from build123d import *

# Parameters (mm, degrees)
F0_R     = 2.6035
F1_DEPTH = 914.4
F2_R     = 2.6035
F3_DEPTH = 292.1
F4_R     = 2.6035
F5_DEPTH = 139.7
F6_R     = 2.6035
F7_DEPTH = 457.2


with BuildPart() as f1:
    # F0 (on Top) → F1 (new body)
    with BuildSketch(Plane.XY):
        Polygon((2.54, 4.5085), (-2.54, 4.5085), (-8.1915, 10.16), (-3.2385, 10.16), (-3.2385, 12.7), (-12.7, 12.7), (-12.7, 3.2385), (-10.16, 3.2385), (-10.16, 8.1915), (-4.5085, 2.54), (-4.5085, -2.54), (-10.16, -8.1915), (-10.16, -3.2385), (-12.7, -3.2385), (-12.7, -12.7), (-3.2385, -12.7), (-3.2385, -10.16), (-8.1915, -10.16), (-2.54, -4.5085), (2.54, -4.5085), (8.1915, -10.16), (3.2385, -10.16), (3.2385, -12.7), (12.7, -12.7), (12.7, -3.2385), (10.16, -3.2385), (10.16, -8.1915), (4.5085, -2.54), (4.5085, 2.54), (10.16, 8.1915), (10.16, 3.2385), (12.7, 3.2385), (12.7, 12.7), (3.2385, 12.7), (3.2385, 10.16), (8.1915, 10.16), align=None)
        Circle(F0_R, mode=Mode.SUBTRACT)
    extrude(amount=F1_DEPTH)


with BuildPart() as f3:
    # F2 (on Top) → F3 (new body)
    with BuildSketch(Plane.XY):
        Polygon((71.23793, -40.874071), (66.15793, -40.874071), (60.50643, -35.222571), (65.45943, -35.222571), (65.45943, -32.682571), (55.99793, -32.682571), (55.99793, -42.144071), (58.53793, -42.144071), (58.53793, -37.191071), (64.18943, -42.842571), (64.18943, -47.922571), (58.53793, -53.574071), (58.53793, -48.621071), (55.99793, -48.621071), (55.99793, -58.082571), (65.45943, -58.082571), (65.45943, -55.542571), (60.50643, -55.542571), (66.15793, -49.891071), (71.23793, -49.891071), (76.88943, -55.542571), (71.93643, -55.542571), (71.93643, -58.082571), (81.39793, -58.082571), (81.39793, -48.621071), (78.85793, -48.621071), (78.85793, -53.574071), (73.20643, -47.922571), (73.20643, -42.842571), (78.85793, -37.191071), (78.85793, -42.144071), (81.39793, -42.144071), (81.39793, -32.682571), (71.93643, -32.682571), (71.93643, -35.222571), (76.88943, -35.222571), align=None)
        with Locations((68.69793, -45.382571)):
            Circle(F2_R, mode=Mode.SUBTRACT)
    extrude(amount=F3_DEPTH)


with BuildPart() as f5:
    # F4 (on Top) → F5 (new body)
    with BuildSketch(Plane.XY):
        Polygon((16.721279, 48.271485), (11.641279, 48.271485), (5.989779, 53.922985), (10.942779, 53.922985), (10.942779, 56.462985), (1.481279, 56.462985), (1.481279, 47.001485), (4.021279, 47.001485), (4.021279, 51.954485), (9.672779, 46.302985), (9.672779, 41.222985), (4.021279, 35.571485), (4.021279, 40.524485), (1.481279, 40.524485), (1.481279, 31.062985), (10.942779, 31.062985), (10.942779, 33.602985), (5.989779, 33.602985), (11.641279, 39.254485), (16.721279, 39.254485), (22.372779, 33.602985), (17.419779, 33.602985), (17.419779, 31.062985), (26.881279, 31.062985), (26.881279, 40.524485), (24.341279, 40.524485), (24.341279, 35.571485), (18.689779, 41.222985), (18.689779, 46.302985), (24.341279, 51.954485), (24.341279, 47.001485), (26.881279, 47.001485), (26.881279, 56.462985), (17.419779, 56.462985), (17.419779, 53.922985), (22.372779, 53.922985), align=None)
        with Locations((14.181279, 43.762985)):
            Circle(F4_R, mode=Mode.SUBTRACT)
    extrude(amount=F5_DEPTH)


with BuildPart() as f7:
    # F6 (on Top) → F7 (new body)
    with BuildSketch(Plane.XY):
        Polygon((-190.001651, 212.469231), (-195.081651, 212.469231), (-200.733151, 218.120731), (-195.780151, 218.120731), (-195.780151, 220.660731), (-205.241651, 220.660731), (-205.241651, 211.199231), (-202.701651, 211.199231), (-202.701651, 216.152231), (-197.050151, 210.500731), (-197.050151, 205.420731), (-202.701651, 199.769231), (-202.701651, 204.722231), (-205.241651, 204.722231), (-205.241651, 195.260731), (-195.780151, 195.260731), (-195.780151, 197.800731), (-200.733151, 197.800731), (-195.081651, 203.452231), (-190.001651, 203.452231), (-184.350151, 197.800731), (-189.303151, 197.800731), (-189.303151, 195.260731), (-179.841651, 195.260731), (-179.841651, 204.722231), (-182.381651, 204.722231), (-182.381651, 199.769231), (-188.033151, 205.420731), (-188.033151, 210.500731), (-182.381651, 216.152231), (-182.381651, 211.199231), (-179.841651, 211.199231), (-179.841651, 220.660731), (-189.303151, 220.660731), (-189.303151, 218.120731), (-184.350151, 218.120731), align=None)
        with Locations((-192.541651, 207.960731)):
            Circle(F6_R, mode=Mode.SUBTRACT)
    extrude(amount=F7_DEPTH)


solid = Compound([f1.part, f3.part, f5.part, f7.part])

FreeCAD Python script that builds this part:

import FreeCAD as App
import Part
import Sketcher
from FreeCAD import Vector
Q = App.Units.Quantity


def add_polygon(sketch, points):
    """Adds a closed chain of lines whose ends are joined by coincident constraints."""
    first, n = sketch.GeometryCount, len(points)
    for a, b in zip(points, points[1:] + points[:1]):
        sketch.addGeometry(Part.LineSegment(App.Vector(*a, 0), App.Vector(*b, 0)), False)
    for i in range(n):
        sketch.addConstraint(Sketcher.Constraint("Coincident", first + i, 2, first + (i + 1) % n, 1))

doc = App.newDocument("Part")
body = doc.addObject("PartDesign::Body", "Body")

# Sketch on XY plane
sketch1 = body.newObject("Sketcher::SketchObject", "Sketch")
sketch1.AttachmentSupport = (doc.getObject("XY_Plane"), [""])
sketch1.MapMode = "FlatFace"
add_polygon(sketch1, [(2.5, 4.5), (-2.5, 4.5), (-8.2, 10.2), (-3.2, 10.2), (-3.2, 12.7), (-12.7, 12.7), (-12.7, 3.2), (-10.2, 3.2), (-10.2, 8.2), (-4.5, 2.5), (-4.5, -2.5), (-10.2, -8.2), (-10.2, -3.2), (-12.7, -3.2), (-12.7, -12.7), (-3.2, -12.7), (-3.2, -10.2), (-8.2, -10.2), (-2.5, -4.5), (2.5, -4.5), (8.2, -10.2), (3.2, -10.2), (3.2, -12.7), (12.7, -12.7), (12.7, -3.2), (10.2, -3.2), (10.2, -8.2), (4.5, -2.5), (4.5, 2.5), (10.2, 8.2), (10.2, 3.2), (12.7, 3.2), (12.7, 12.7), (3.2, 12.7), (3.2, 10.2), (8.2, 10.2)])  # lines 0-35
sketch1.addGeometry(Part.Circle(Vector(0, 0, 0), Vector(0, 0, 1), 2.6), False)  # 36
sketch1.addConstraint([
    Sketcher.Constraint("Horizontal", 0),
    Sketcher.Constraint("Horizontal", 2),
    Sketcher.Constraint("Vertical", 3),
    Sketcher.Constraint("Horizontal", 4),
    Sketcher.Constraint("Vertical", 5),
    Sketcher.Constraint("Horizontal", 6),
    Sketcher.Constraint("Vertical", 7),
    Sketcher.Constraint("Vertical", 9),
    Sketcher.Constraint("Vertical", 11),
    Sketcher.Constraint("Horizontal", 12),
    Sketcher.Constraint("Vertical", 13),
    Sketcher.Constraint("Horizontal", 14),
    Sketcher.Constraint("Vertical", 15),
    Sketcher.Constraint("Horizontal", 16),
    Sketcher.Constraint("Horizontal", 18),
    Sketcher.Constraint("Horizontal", 20),
    Sketcher.Constraint("Vertical", 21),
    Sketcher.Constraint("Horizontal", 22),
    Sketcher.Constraint("Vertical", 23),
    Sketcher.Constraint("Horizontal", 24),
    Sketcher.Constraint("Vertical", 25),
    Sketcher.Constraint("Vertical", 27),
    Sketcher.Constraint("Vertical", 29),
    Sketcher.Constraint("Horizontal", 30),
    Sketcher.Constraint("Vertical", 31),
    Sketcher.Constraint("Horizontal", 32),
    Sketcher.Constraint("Vertical", 33),
    Sketcher.Constraint("Horizontal", 34),
    Sketcher.Constraint("Coincident", 36, 3, -1, 1),
    Sketcher.Constraint("Symmetric", 0, 2, 18, 2, -1, 1),
    Sketcher.Constraint("Symmetric", 1, 2, 19, 2, -1, 1),
    Sketcher.Constraint("Symmetric", 3, 2, 21, 2, -1, 1),
    Sketcher.Constraint("Symmetric", 5, 2, 23, 2, -1, 1),
    Sketcher.Constraint("Symmetric", 7, 2, 25, 2, -1, 1),
    Sketcher.Constraint("Symmetric", 8, 2, 26, 2, -1, 1),
    Sketcher.Constraint("Symmetric", 10, 2, 28, 2, -1, 1),
    Sketcher.Constraint("Symmetric", 12, 2, 30, 2, -1, 1),
    Sketcher.Constraint("Symmetric", 14, 2, 32, 2, -1, 1),
    Sketcher.Constraint("Symmetric", 16, 2, 34, 2, -1, 1),
    Sketcher.Constraint("Symmetric", 16, 2, 19, 2, -2),
    Sketcher.Constraint("Symmetric", 14, 2, 21, 2, -2),
    Sketcher.Constraint("Symmetric", 12, 2, 23, 2, -2),
    Sketcher.Constraint("Symmetric", 10, 2, 25, 2, -2),
    Sketcher.Constraint("Parallel", 1, 8),
    Sketcher.Constraint("Perpendicular", 8, 10),
    Sketcher.Constraint("Parallel", 10, 17),
    Sketcher.Constraint("Perpendicular", 26, 28),
    Sketcher.Constraint("Parallel", 28, 35),
    Sketcher.Constraint("Horizontal", 9, 2, 26, 2),
    Sketcher.Constraint("Equal", 30, 3),
    Sketcher.Constraint("Equal", 32, 5),
    Sketcher.Constraint("Equal", 34, 7),
    Sketcher.Constraint("Equal", 18, 9),
    Sketcher.Constraint("Equal", 1, 8),
    Sketcher.Constraint("Diameter", 36, Q("0.205 in")),
    Sketcher.Constraint("DistanceX", 0, 2, 0, 1, Q("0.2 in")),
    Sketcher.Constraint("DistanceX", 6, 1, 6, 2, Q("0.1 in")),
    Sketcher.Constraint("DistanceY", -1, 1, 1, 2, Q("0.4 in")),
    Sketcher.Constraint("DistanceX", 2, 1, 2, 2, Q("0.195 in")),
    Sketcher.Constraint("DistanceY", 5, 2, 0, 2, Q("0.05 in")),
])
pad1 = body.newObject("PartDesign::Pad", "Pad")
pad1.Profile = sketch1
pad1.Length = Q("36 in")
body2 = doc.addObject("PartDesign::Body", "Body001")

# Sketch on XY plane
sketch2 = body2.newObject("Sketcher::SketchObject", "Sketch001")
sketch2.AttachmentSupport = (doc.getObject("XY_Plane001"), [""])
sketch2.MapMode = "FlatFace"
add_polygon(sketch2, [(71.2, -40.9), (66.2, -40.9), (60.5, -35.2), (65.5, -35.2), (65.5, -32.7), (56, -32.7), (56, -42.1), (58.5, -42.1), (58.5, -37.2), (64.2, -42.8), (64.2, -47.9), (58.5, -53.6), (58.5, -48.6), (56, -48.6), (56, -58.1), (65.5, -58.1), (65.5, -55.5), (60.5, -55.5), (66.2, -49.9), (71.2, -49.9), (76.9, -55.5), (71.9, -55.5), (71.9, -58.1), (81.4, -58.1), (81.4, -48.6), (78.9, -48.6), (78.9, -53.6), (73.2, -47.9), (73.2, -42.8), (78.9, -37.2), (78.9, -42.1), (81.4, -42.1), (81.4, -32.7), (71.9, -32.7), (71.9, -35.2), (76.9, -35.2)])  # lines 0-35
sketch2.addGeometry(Part.Circle(Vector(68.7, -45.4, 0), Vector(0, 0, 1), 2.6), False)  # 36
sketch2.addConstraint([
    Sketcher.Constraint("Horizontal", 0),
    Sketcher.Constraint("Horizontal", 2),
    Sketcher.Constraint("Vertical", 3),
    Sketcher.Constraint("Horizontal", 4),
    Sketcher.Constraint("Vertical", 5),
    Sketcher.Constraint("Horizontal", 6),
    Sketcher.Constraint("Vertical", 7),
    Sketcher.Constraint("Vertical", 9),
    Sketcher.Constraint("Vertical", 11),
    Sketcher.Constraint("Horizontal", 12),
    Sketcher.Constraint("Vertical", 13),
    Sketcher.Constraint("Horizontal", 14),
    Sketcher.Constraint("Vertical", 15),
    Sketcher.Constraint("Horizontal", 16),
    Sketcher.Constraint("Horizontal", 18),
    Sketcher.Constraint("Horizontal", 20),
    Sketcher.Constraint("Vertical", 21),
    Sketcher.Constraint("Horizontal", 22),
    Sketcher.Constraint("Vertical", 23),
    Sketcher.Constraint("Horizontal", 24),
    Sketcher.Constraint("Vertical", 25),
    Sketcher.Constraint("Vertical", 27),
    Sketcher.Constraint("Vertical", 29),
    Sketcher.Constraint("Horizontal", 30),
    Sketcher.Constraint("Vertical", 31),
    Sketcher.Constraint("Horizontal", 32),
    Sketcher.Constraint("Vertical", 33),
    Sketcher.Constraint("Horizontal", 34),
    Sketcher.Constraint("Parallel", 1, 8),
    Sketcher.Constraint("Perpendicular", 8, 10),
    Sketcher.Constraint("Parallel", 10, 17),
    Sketcher.Constraint("Perpendicular", 17, 19),
    Sketcher.Constraint("Parallel", 19, 26),
    Sketcher.Constraint("Perpendicular", 26, 28),
    Sketcher.Constraint("Parallel", 28, 35),
    Sketcher.Constraint("Horizontal", 16, 2, 19, 2),
    Sketcher.Constraint("Horizontal", 14, 2, 21, 2),
    Sketcher.Constraint("Horizontal", 12, 2, 23, 2),
    Sketcher.Constraint("Horizontal", 10, 2, 25, 2),
    Sketcher.Constraint("Horizontal", 9, 2, 26, 2),
    Sketcher.Constraint("Horizontal", 8, 2, 27, 2),
    Sketcher.Constraint("Horizontal", 7, 2, 28, 2),
    Sketcher.Constraint("Horizontal", 6, 2, 29, 2),
    Sketcher.Constraint("Horizontal", 4, 2, 31, 2),
    Sketcher.Constraint("Horizontal", 2, 2, 33, 2),
    Sketcher.Constraint("Vertical", 7, 2, 10, 2),
    Sketcher.Constraint("Vertical", 5, 2, 12, 2),
    Sketcher.Constraint("Vertical", 3, 2, 14, 2),
    Sketcher.Constraint("Vertical", 1, 2, 16, 2),
    Sketcher.Constraint("Vertical", 0, 2, 17, 2),
    Sketcher.Constraint("Vertical", 25, 2, 28, 2),
    Sketcher.Constraint("Vertical", 23, 2, 30, 2),
    Sketcher.Constraint("Vertical", 21, 2, 32, 2),
    Sketcher.Constraint("Vertical", 19, 2, 34, 2),
    Sketcher.Constraint("Equal", 16, 20),
    Sketcher.Constraint("Equal", 14, 22),
    Sketcher.Constraint("Equal", 12, 24),
    Sketcher.Constraint("Equal", 30, 3),
    Sketcher.Constraint("Equal", 32, 5),
    Sketcher.Constraint("Equal", 34, 7),
    Sketcher.Constraint("Equal", 18, 9),
    Sketcher.Constraint("Equal", 7, 11),
    Sketcher.Constraint("Equal", 5, 13),
    Sketcher.Constraint("Equal", 3, 15),
    Sketcher.Constraint("Equal", 1, 8),
    Sketcher.Constraint("Diameter", 36, Q("0.205 in")),
    Sketcher.Constraint("DistanceX", 0, 2, 0, 1, Q("0.2 in")),
    Sketcher.Constraint("DistanceX", 6, 1, 6, 2, Q("0.1 in")),
    Sketcher.Constraint("DistanceX", 0, 2, 36, 3, Q("0.1 in")),
    Sketcher.Constraint("DistanceY", 36, 3, 1, 2, Q("0.4 in")),
    Sketcher.Constraint("DistanceX", 4, 2, 0, 2, Q("0.4 in")),
    Sketcher.Constraint("DistanceX", 2, 1, 2, 2, Q("0.195 in")),
    Sketcher.Constraint("DistanceY", 5, 2, 0, 2, Q("0.05 in")),
    Sketcher.Constraint("DistanceX", -1, 1, 36, 3, 68.69793),
    Sketcher.Constraint("DistanceY", 36, 3, -1, 1, 45.382571),
])
pad2 = body2.newObject("PartDesign::Pad", "Pad001")
pad2.Profile = sketch2
pad2.Length = Q("11.5 in")
body3 = doc.addObject("PartDesign::Body", "Body002")

# Sketch on XY plane
sketch3 = body3.newObject("Sketcher::SketchObject", "Sketch002")
sketch3.AttachmentSupport = (doc.getObject("XY_Plane002"), [""])
sketch3.MapMode = "FlatFace"
add_polygon(sketch3, [(16.7, 48.3), (11.6, 48.3), (6, 53.9), (10.9, 53.9), (10.9, 56.5), (1.5, 56.5), (1.5, 47), (4, 47), (4, 52), (9.7, 46.3), (9.7, 41.2), (4, 35.6), (4, 40.5), (1.5, 40.5), (1.5, 31.1), (10.9, 31.1), (10.9, 33.6), (6, 33.6), (11.6, 39.3), (16.7, 39.3), (22.4, 33.6), (17.4, 33.6), (17.4, 31.1), (26.9, 31.1), (26.9, 40.5), (24.3, 40.5), (24.3, 35.6), (18.7, 41.2), (18.7, 46.3), (24.3, 52), (24.3, 47), (26.9, 47), (26.9, 56.5), (17.4, 56.5), (17.4, 53.9), (22.4, 53.9)])  # lines 0-35
sketch3.addGeometry(Part.Circle(Vector(14.2, 43.8, 0), Vector(0, 0, 1), 2.6), False)  # 36
sketch3.addConstraint([
    Sketcher.Constraint("Horizontal", 0),
    Sketcher.Constraint("Horizontal", 2),
    Sketcher.Constraint("Vertical", 3),
    Sketcher.Constraint("Horizontal", 4),
    Sketcher.Constraint("Vertical", 5),
    Sketcher.Constraint("Horizontal", 6),
    Sketcher.Constraint("Vertical", 7),
    Sketcher.Constraint("Vertical", 9),
    Sketcher.Constraint("Vertical", 11),
    Sketcher.Constraint("Horizontal", 12),
    Sketcher.Constraint("Vertical", 13),
    Sketcher.Constraint("Horizontal", 14),
    Sketcher.Constraint("Vertical", 15),
    Sketcher.Constraint("Horizontal", 16),
    Sketcher.Constraint("Horizontal", 18),
    Sketcher.Constraint("Horizontal", 20),
    Sketcher.Constraint("Vertical", 21),
    Sketcher.Constraint("Horizontal", 22),
    Sketcher.Constraint("Vertical", 23),
    Sketcher.Constraint("Horizontal", 24),
    Sketcher.Constraint("Vertical", 25),
    Sketcher.Constraint("Vertical", 27),
    Sketcher.Constraint("Vertical", 29),
    Sketcher.Constraint("Horizontal", 30),
    Sketcher.Constraint("Vertical", 31),
    Sketcher.Constraint("Horizontal", 32),
    Sketcher.Constraint("Vertical", 33),
    Sketcher.Constraint("Horizontal", 34),
    Sketcher.Constraint("Parallel", 1, 8),
    Sketcher.Constraint("Perpendicular", 8, 10),
    Sketcher.Constraint("Parallel", 10, 17),
    Sketcher.Constraint("Perpendicular", 17, 19),
    Sketcher.Constraint("Parallel", 19, 26),
    Sketcher.Constraint("Perpendicular", 26, 28),
    Sketcher.Constraint("Parallel", 28, 35),
    Sketcher.Constraint("Horizontal", 16, 2, 19, 2),
    Sketcher.Constraint("Horizontal", 14, 2, 21, 2),
    Sketcher.Constraint("Horizontal", 12, 2, 23, 2),
    Sketcher.Constraint("Horizontal", 10, 2, 25, 2),
    Sketcher.Constraint("Horizontal", 9, 2, 26, 2),
    Sketcher.Constraint("Horizontal", 8, 2, 27, 2),
    Sketcher.Constraint("Horizontal", 7, 2, 28, 2),
    Sketcher.Constraint("Horizontal", 6, 2, 29, 2),
    Sketcher.Constraint("Horizontal", 4, 2, 31, 2),
    Sketcher.Constraint("Horizontal", 2, 2, 33, 2),
    Sketcher.Constraint("Vertical", 7, 2, 10, 2),
    Sketcher.Constraint("Vertical", 5, 2, 12, 2),
    Sketcher.Constraint("Vertical", 3, 2, 14, 2),
    Sketcher.Constraint("Vertical", 1, 2, 16, 2),
    Sketcher.Constraint("Vertical", 0, 2, 17, 2),
    Sketcher.Constraint("Vertical", 25, 2, 28, 2),
    Sketcher.Constraint("Vertical", 23, 2, 30, 2),
    Sketcher.Constraint("Vertical", 21, 2, 32, 2),
    Sketcher.Constraint("Vertical", 19, 2, 34, 2),
    Sketcher.Constraint("Equal", 16, 20),
    Sketcher.Constraint("Equal", 14, 22),
    Sketcher.Constraint("Equal", 12, 24),
    Sketcher.Constraint("Equal", 30, 3),
    Sketcher.Constraint("Equal", 32, 5),
    Sketcher.Constraint("Equal", 34, 7),
    Sketcher.Constraint("Equal", 18, 9),
    Sketcher.Constraint("Equal", 7, 11),
    Sketcher.Constraint("Equal", 5, 13),
    Sketcher.Constraint("Equal", 3, 15),
    Sketcher.Constraint("Equal", 1, 8),
    Sketcher.Constraint("Diameter", 36, Q("0.205 in")),
    Sketcher.Constraint("DistanceX", 0, 2, 0, 1, Q("0.2 in")),
    Sketcher.Constraint("DistanceX", 6, 1, 6, 2, Q("0.1 in")),
    Sketcher.Constraint("DistanceX", 0, 2, 36, 3, Q("0.1 in")),
    Sketcher.Constraint("DistanceY", 36, 3, 1, 2, Q("0.4 in")),
    Sketcher.Constraint("DistanceX", 4, 2, 0, 2, Q("0.4 in")),
    Sketcher.Constraint("DistanceX", 2, 1, 2, 2, Q("0.195 in")),
    Sketcher.Constraint("DistanceY", 5, 2, 0, 2, Q("0.05 in")),
    Sketcher.Constraint("DistanceX", -1, 1, 36, 3, 14.181279),
    Sketcher.Constraint("DistanceY", -1, 1, 36, 3, 43.762985),
])
pad3 = body3.newObject("PartDesign::Pad", "Pad002")
pad3.Profile = sketch3
pad3.Length = Q("5.5 in")
body4 = doc.addObject("PartDesign::Body", "Body003")

# Sketch on XY plane
sketch4 = body4.newObject("Sketcher::SketchObject", "Sketch003")
sketch4.AttachmentSupport = (doc.getObject("XY_Plane003"), [""])
sketch4.MapMode = "FlatFace"
add_polygon(sketch4, [(-190, 212.5), (-195.1, 212.5), (-200.7, 218.1), (-195.8, 218.1), (-195.8, 220.7), (-205.2, 220.7), (-205.2, 211.2), (-202.7, 211.2), (-202.7, 216.2), (-197.1, 210.5), (-197.1, 205.4), (-202.7, 199.8), (-202.7, 204.7), (-205.2, 204.7), (-205.2, 195.3), (-195.8, 195.3), (-195.8, 197.8), (-200.7, 197.8), (-195.1, 203.5), (-190, 203.5), (-184.4, 197.8), (-189.3, 197.8), (-189.3, 195.3), (-179.8, 195.3), (-179.8, 204.7), (-182.4, 204.7), (-182.4, 199.8), (-188, 205.4), (-188, 210.5), (-182.4, 216.2), (-182.4, 211.2), (-179.8, 211.2), (-179.8, 220.7), (-189.3, 220.7), (-189.3, 218.1), (-184.4, 218.1)])  # lines 0-35
sketch4.addGeometry(Part.Circle(Vector(-192.5, 208, 0), Vector(0, 0, 1), 2.6), False)  # 36
sketch4.addConstraint([
    Sketcher.Constraint("Horizontal", 0),
    Sketcher.Constraint("Horizontal", 2),
    Sketcher.Constraint("Vertical", 3),
    Sketcher.Constraint("Horizontal", 4),
    Sketcher.Constraint("Vertical", 5),
    Sketcher.Constraint("Horizontal", 6),
    Sketcher.Constraint("Vertical", 7),
    Sketcher.Constraint("Vertical", 9),
    Sketcher.Constraint("Vertical", 11),
    Sketcher.Constraint("Horizontal", 12),
    Sketcher.Constraint("Vertical", 13),
    Sketcher.Constraint("Horizontal", 14),
    Sketcher.Constraint("Vertical", 15),
    Sketcher.Constraint("Horizontal", 16),
    Sketcher.Constraint("Horizontal", 18),
    Sketcher.Constraint("Horizontal", 20),
    Sketcher.Constraint("Vertical", 21),
    Sketcher.Constraint("Horizontal", 22),
    Sketcher.Constraint("Vertical", 23),
    Sketcher.Constraint("Horizontal", 24),
    Sketcher.Constraint("Vertical", 25),
    Sketcher.Constraint("Vertical", 27),
    Sketcher.Constraint("Vertical", 29),
    Sketcher.Constraint("Horizontal", 30),
    Sketcher.Constraint("Vertical", 31),
    Sketcher.Constraint("Horizontal", 32),
    Sketcher.Constraint("Vertical", 33),
    Sketcher.Constraint("Horizontal", 34),
    Sketcher.Constraint("Parallel", 1, 8),
    Sketcher.Constraint("Perpendicular", 8, 10),
    Sketcher.Constraint("Parallel", 10, 17),
    Sketcher.Constraint("Perpendicular", 17, 19),
    Sketcher.Constraint("Parallel", 19, 26),
    Sketcher.Constraint("Perpendicular", 26, 28),
    Sketcher.Constraint("Parallel", 28, 35),
    Sketcher.Constraint("Horizontal", 16, 2, 19, 2),
    Sketcher.Constraint("Horizontal", 14, 2, 21, 2),
    Sketcher.Constraint("Horizontal", 12, 2, 23, 2),
    Sketcher.Constraint("Horizontal", 10, 2, 25, 2),
    Sketcher.Constraint("Horizontal", 9, 2, 26, 2),
    Sketcher.Constraint("Horizontal", 8, 2, 27, 2),
    Sketcher.Constraint("Horizontal", 7, 2, 28, 2),
    Sketcher.Constraint("Horizontal", 6, 2, 29, 2),
    Sketcher.Constraint("Horizontal", 4, 2, 31, 2),
    Sketcher.Constraint("Horizontal", 2, 2, 33, 2),
    Sketcher.Constraint("Vertical", 7, 2, 10, 2),
    Sketcher.Constraint("Vertical", 5, 2, 12, 2),
    Sketcher.Constraint("Vertical", 3, 2, 14, 2),
    Sketcher.Constraint("Vertical", 1, 2, 16, 2),
    Sketcher.Constraint("Vertical", 0, 2, 17, 2),
    Sketcher.Constraint("Vertical", 25, 2, 28, 2),
    Sketcher.Constraint("Vertical", 23, 2, 30, 2),
    Sketcher.Constraint("Vertical", 21, 2, 32, 2),
    Sketcher.Constraint("Vertical", 19, 2, 34, 2),
    Sketcher.Constraint("Equal", 16, 20),
    Sketcher.Constraint("Equal", 14, 22),
    Sketcher.Constraint("Equal", 12, 24),
    Sketcher.Constraint("Equal", 30, 3),
    Sketcher.Constraint("Equal", 32, 5),
    Sketcher.Constraint("Equal", 34, 7),
    Sketcher.Constraint("Equal", 18, 9),
    Sketcher.Constraint("Equal", 7, 11),
    Sketcher.Constraint("Equal", 5, 13),
    Sketcher.Constraint("Equal", 3, 15),
    Sketcher.Constraint("Equal", 1, 8),
    Sketcher.Constraint("Diameter", 36, Q("0.205 in")),
    Sketcher.Constraint("DistanceX", 0, 2, 0, 1, Q("0.2 in")),
    Sketcher.Constraint("DistanceX", 6, 1, 6, 2, Q("0.1 in")),
    Sketcher.Constraint("DistanceX", 0, 2, 36, 3, Q("0.1 in")),
    Sketcher.Constraint("DistanceY", 36, 3, 1, 2, Q("0.4 in")),
    Sketcher.Constraint("DistanceX", 4, 2, 0, 2, Q("0.4 in")),
    Sketcher.Constraint("DistanceX", 2, 1, 2, 2, Q("0.195 in")),
    Sketcher.Constraint("DistanceY", 5, 2, 0, 2, Q("0.05 in")),
    Sketcher.Constraint("DistanceX", 36, 3, -1, 1, 192.541651),
    Sketcher.Constraint("DistanceY", -1, 1, 36, 3, 207.960731),
])
pad4 = body4.newObject("PartDesign::Pad", "Pad003")
pad4.Profile = sketch4
pad4.Length = Q("18 in")

doc.recompute()
